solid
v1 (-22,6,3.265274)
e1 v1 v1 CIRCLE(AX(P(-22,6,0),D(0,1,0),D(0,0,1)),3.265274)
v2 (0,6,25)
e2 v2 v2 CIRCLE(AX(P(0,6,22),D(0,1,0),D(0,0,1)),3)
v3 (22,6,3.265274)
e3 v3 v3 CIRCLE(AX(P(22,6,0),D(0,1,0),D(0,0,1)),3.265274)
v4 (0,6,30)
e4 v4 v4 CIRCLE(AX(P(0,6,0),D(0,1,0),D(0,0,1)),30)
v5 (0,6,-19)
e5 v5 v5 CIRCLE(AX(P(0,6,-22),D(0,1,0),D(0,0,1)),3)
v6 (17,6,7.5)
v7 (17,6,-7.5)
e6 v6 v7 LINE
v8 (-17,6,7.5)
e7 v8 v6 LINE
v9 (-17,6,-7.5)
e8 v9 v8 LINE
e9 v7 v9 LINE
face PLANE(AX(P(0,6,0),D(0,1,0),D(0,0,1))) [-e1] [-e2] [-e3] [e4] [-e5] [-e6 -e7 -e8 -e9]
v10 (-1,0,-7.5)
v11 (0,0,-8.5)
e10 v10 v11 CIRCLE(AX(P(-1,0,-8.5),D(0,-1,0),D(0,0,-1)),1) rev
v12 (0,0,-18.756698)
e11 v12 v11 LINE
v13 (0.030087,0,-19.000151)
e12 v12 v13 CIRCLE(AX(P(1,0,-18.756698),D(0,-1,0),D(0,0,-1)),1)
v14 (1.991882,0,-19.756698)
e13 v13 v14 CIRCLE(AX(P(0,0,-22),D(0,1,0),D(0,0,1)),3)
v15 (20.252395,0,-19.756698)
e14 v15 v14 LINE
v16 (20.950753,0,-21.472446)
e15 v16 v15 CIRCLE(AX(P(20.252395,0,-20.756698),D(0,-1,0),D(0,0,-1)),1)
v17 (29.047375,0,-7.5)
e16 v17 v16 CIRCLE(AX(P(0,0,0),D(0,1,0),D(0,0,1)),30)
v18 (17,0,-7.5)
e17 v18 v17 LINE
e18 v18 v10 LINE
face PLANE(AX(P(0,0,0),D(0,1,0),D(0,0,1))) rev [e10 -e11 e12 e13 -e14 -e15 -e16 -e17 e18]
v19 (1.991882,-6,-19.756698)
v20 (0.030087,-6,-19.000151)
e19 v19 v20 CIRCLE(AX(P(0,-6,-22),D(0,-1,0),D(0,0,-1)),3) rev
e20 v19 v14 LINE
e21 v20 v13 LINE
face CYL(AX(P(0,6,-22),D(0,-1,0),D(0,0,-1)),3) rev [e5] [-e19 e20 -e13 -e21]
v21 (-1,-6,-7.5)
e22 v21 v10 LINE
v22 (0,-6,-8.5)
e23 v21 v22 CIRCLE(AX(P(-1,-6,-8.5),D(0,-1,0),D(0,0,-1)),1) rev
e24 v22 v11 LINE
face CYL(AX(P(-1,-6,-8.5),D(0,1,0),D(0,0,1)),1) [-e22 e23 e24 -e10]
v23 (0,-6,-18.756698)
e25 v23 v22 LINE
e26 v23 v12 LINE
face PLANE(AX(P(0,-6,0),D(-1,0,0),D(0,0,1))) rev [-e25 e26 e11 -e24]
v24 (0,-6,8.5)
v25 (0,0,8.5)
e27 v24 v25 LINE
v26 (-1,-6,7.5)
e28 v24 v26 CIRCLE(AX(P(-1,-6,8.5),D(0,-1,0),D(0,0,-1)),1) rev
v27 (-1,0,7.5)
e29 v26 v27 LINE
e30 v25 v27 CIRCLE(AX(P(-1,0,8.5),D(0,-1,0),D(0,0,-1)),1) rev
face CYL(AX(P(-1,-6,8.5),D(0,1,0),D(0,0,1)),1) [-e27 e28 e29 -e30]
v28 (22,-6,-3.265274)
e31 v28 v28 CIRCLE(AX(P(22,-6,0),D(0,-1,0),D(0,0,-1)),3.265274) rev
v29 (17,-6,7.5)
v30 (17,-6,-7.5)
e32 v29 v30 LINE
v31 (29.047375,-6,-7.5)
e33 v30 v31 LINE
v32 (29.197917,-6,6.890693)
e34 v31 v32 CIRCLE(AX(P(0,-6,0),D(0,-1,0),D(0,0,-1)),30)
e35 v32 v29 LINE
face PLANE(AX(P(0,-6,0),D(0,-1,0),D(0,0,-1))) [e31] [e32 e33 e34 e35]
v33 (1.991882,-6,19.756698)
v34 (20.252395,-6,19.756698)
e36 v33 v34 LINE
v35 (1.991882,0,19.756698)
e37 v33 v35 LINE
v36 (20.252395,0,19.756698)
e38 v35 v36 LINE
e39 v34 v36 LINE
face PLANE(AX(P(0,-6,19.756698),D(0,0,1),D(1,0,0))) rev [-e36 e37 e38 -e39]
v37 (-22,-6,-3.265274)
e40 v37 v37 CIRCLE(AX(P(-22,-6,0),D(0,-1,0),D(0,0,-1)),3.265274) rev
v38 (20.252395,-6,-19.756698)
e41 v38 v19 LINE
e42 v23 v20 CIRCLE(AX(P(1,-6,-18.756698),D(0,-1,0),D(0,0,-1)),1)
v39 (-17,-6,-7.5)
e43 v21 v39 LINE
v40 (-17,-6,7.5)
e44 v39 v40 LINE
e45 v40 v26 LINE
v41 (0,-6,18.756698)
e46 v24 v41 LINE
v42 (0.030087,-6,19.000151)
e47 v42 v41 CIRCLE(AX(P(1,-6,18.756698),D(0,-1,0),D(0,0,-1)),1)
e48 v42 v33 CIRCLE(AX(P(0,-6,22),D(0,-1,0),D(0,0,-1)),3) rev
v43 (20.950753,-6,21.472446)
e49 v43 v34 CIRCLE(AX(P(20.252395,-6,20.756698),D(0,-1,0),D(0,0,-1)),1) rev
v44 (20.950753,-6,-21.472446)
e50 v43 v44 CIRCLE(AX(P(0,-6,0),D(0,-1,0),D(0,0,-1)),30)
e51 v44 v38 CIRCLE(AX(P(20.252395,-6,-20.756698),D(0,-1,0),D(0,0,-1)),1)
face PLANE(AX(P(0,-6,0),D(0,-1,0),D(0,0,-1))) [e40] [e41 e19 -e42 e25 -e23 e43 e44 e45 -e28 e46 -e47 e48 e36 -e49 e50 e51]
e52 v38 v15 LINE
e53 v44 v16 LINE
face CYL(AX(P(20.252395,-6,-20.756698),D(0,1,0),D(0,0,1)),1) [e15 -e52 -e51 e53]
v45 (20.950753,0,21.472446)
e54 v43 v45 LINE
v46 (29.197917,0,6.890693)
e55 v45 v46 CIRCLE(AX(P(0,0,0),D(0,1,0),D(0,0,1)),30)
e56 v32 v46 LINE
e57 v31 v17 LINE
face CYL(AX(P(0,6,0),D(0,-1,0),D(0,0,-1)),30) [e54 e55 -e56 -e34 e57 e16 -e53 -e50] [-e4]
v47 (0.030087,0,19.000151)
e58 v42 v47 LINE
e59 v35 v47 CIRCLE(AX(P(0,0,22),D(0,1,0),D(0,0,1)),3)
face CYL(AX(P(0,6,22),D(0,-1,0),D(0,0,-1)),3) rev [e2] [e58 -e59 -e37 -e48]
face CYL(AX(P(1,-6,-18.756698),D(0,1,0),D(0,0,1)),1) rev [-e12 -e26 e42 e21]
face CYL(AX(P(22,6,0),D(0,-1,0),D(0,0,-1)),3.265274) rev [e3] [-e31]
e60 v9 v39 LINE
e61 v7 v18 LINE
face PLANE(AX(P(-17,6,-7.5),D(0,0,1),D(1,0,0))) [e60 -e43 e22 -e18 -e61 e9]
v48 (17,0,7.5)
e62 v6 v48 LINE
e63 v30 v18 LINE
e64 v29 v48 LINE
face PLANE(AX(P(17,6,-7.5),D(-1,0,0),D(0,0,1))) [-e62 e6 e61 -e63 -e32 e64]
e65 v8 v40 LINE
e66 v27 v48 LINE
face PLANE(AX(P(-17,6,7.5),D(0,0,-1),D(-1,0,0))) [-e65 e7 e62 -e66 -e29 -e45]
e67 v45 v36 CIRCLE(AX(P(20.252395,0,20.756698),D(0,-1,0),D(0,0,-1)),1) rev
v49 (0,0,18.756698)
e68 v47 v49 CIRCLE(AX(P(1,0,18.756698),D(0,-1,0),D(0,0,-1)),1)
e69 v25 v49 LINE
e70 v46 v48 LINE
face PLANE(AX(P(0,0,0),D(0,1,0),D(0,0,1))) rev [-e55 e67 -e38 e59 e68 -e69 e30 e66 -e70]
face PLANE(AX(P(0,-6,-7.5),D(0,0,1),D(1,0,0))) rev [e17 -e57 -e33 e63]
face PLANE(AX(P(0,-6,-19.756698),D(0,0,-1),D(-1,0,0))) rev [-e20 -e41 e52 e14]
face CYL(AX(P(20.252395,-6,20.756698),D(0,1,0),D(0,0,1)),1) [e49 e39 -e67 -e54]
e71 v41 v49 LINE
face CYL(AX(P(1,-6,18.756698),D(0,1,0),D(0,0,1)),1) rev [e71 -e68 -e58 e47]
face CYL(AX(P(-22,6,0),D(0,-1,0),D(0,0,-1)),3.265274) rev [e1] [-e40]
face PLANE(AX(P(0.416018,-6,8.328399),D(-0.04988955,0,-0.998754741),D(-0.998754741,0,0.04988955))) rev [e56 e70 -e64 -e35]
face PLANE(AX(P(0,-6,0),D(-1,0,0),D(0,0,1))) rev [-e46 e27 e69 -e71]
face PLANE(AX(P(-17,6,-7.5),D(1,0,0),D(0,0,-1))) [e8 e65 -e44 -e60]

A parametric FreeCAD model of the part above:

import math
import FreeCAD as App
import Part
import Sketcher
Q = App.Units.Quantity


def add_polygon(sketch, points):
    """Adds a closed chain of lines whose ends are joined by coincident constraints."""
    first, n = sketch.GeometryCount, len(points)
    for a, b in zip(points, points[1:] + points[:1]):
        sketch.addGeometry(Part.LineSegment(App.Vector(*a, 0), App.Vector(*b, 0)), False)
    for i in range(n):
        sketch.addConstraint(Sketcher.Constraint("Coincident", first + i, 2, first + (i + 1) % n, 1))

doc = App.newDocument("Part")
body = doc.addObject("PartDesign::Body", "Body")

sketch1 = body.newObject("Sketcher::SketchObject", "Sketch")
sketch1.AttachmentSupport = (doc.getObject("XZ_Plane"), [""])
sketch1.MapMode = "FlatFace"
sketch1.addGeometry(Part.Circle(App.Vector(0, 0, 0), App.Vector(0, 0, 1), 30), False)
sketch1.addGeometry(Part.Circle(App.Vector(0, -22, 0), App.Vector(0, 0, 1), 3), False)
sketch1.addGeometry(Part.Circle(App.Vector(-22, 0, 0), App.Vector(0, 0, 1), 3.3), False)
sketch1.addGeometry(Part.Circle(App.Vector(22, 0, 0), App.Vector(0, 0, 1), 3.3), False)
add_polygon(sketch1, [(17, 7.5), (-17, 7.5), (-17, -7.5), (17, -7.5)])
sketch1.addGeometry(Part.Circle(App.Vector(0, 22, 0), App.Vector(0, 0, 1), 3), False)
sketch1.addConstraint([
    Sketcher.Constraint("Horizontal", 4),
    Sketcher.Constraint("Vertical", 5),
    Sketcher.Constraint("Horizontal", 6),
    Sketcher.Constraint("Vertical", 7),
    Sketcher.Constraint("Coincident", 0, 3, -1, 1),
    Sketcher.Constraint("Equal", 2, 3),
    Sketcher.Constraint("Equal", 1, 8),
    Sketcher.Constraint("Symmetric", 2, 3, 3, 3, -1, 1),
    Sketcher.Constraint("Symmetric", 1, 3, 8, 3, -1, 1),
    Sketcher.Constraint("Symmetric", 4, 2, 6, 2, -1, 1),
    Sketcher.Constraint("PointOnObject", 1, 3, -2),
    Sketcher.Constraint("PointOnObject", 2, 3, -1),
    Sketcher.Constraint("Diameter", 0, Q("60 mm")),
    Sketcher.Constraint("Diameter", 1, Q("6 mm")),
    Sketcher.Constraint("DistanceX", 4, 2, 4, 1, Q("34 mm")),
    Sketcher.Constraint("DistanceY", 5, 2, 5, 1, Q("15 mm")),
    Sketcher.Constraint("DistanceY", 1, 3, -1, 1, Q("22 mm")),
    Sketcher.Constraint("DistanceX", 2, 3, -1, 1, Q("22 mm")),
    Sketcher.Constraint("Diameter", 2, Q("6.530548 mm")),
])
pad1 = body.newObject("PartDesign::Pad", "Pad")
pad1.Profile = sketch1
pad1.Length = 6
pad1.Reversed = True

sketch2 = body.newObject("Sketcher::SketchObject", "Sketch001")
sketch2.AttachmentSupport = (doc.getObject("XZ_Plane"), [""])
sketch2.MapMode = "FlatFace"
sketch2.AttachmentOffset = App.Placement(App.Vector(0, 0, 6), App.Rotation())
sketch2.addGeometry([
    Part.ArcOfCircle(Part.Circle(App.Vector(20.25, -20.76, 0), App.Vector(0, 0, 1), 1), math.radians(-46), math.radians(90)),
    Part.LineSegment(App.Vector(20.25, -19.76, 0), App.Vector(1.99, -19.76, 0)),
    Part.ArcOfCircle(Part.Circle(App.Vector(0, -22, 0), App.Vector(0, 0, 1), 3), math.radians(0), math.radians(48)),
    Part.ArcOfCircle(Part.Circle(App.Vector(0, -22, 0), App.Vector(0, 0, 1), 3), math.radians(89), math.radians(360)),
    Part.ArcOfCircle(Part.Circle(App.Vector(1, -18.76, 0), App.Vector(0, 0, 1), 1), math.radians(-180), math.radians(-165.91)),
    Part.LineSegment(App.Vector(0, -18.76, 0), App.Vector(0, -8.5, 0)),
    Part.ArcOfCircle(Part.Circle(App.Vector(-1, -8.5, 0), App.Vector(0, 0, 1), 1), math.radians(0), math.radians(90)),
    Part.LineSegment(App.Vector(-1, -7.5, 0), App.Vector(-17, -7.5, 0)),
    Part.LineSegment(App.Vector(-17, -7.5, 0), App.Vector(-17, 7.5, 0)),
    Part.LineSegment(App.Vector(-17, 7.5, 0), App.Vector(-1, 7.5, 0)),
    Part.ArcOfCircle(Part.Circle(App.Vector(-1, 8.5, 0), App.Vector(0, 0, 1), 1), math.radians(-90), math.radians(0)),
    Part.LineSegment(App.Vector(0, 8.5, 0), App.Vector(0, 18.76, 0)),
    Part.ArcOfCircle(Part.Circle(App.Vector(1, 18.76, 0), App.Vector(0, 0, 1), 1), math.radians(165.91), math.radians(180)),
    Part.ArcOfCircle(Part.Circle(App.Vector(0, 22, 0), App.Vector(0, 0, 1), 3), math.radians(0), math.radians(271)),
    Part.ArcOfCircle(Part.Circle(App.Vector(0, 22, 0), App.Vector(0, 0, 1), 3), math.radians(-48), math.radians(0)),
    Part.LineSegment(App.Vector(1.99, 19.76, 0), App.Vector(20.25, 19.76, 0)),
    Part.ArcOfCircle(Part.Circle(App.Vector(20.25, 20.76, 0), App.Vector(0, 0, 1), 1), math.radians(-90), math.radians(46)),
    Part.ArcOfCircle(Part.Circle(App.Vector(0, 0, 0), App.Vector(0, 0, 1), 30), math.radians(46), math.radians(314)),
    Part.Circle(App.Vector(-22, 0, 0), App.Vector(0, 0, 1), 3.27),
    Part.LineSegment(App.Vector(17, -7.5, 0), App.Vector(29.05, -7.5, 0)),
    Part.ArcOfCircle(Part.Circle(App.Vector(0, 0, 0), App.Vector(0, 0, 1), 30), math.radians(-14.48), math.radians(0)),
    Part.ArcOfCircle(Part.Circle(App.Vector(0, 0, 0), App.Vector(0, 0, 1), 30), math.radians(0), math.radians(13.28)),
    Part.LineSegment(App.Vector(29.2, 6.89, 0), App.Vector(17, 7.5, 0)),
    Part.LineSegment(App.Vector(17, 7.5, 0), App.Vector(17, -7.5, 0)),
    Part.Circle(App.Vector(22, 0, 0), App.Vector(0, 0, 1), 3.27),
], False)
sketch2.addConstraint([
    Sketcher.Constraint("Tangent", 0, 2, 1, 1),
    Sketcher.Constraint("Coincident", 1, 2, 2, 2),
    Sketcher.Constraint("Tangent", 2, 1, 3, 2),
    Sketcher.Constraint("Coincident", 3, 1, 4, 2),
    Sketcher.Constraint("Tangent", 4, 1, 5, 1),
    Sketcher.Constraint("Tangent", 5, 2, 6, 1),
    Sketcher.Constraint("Tangent", 6, 2, 7, 1),
    Sketcher.Constraint("Coincident", 7, 2, 8, 1),
    Sketcher.Constraint("Coincident", 8, 2, 9, 1),
    Sketcher.Constraint("Tangent", 9, 2, 10, 1),
    Sketcher.Constraint("Tangent", 10, 2, 11, 1),
    Sketcher.Constraint("Tangent", 11, 2, 12, 2),
    Sketcher.Constraint("Coincident", 12, 1, 13, 2),
    Sketcher.Constraint("Tangent", 13, 1, 14, 2),
    Sketcher.Constraint("Coincident", 14, 1, 15, 1),
    Sketcher.Constraint("Tangent", 15, 2, 16, 1),
    Sketcher.Constraint("Tangent", 16, 2, 17, 1),
    Sketcher.Constraint("Tangent", 17, 2, 0, 1),
    Sketcher.Constraint("Coincident", 19, 2, 20, 1),
    Sketcher.Constraint("Tangent", 20, 2, 21, 1),
    Sketcher.Constraint("Coincident", 21, 2, 22, 1),
    Sketcher.Constraint("Coincident", 22, 2, 23, 1),
    Sketcher.Constraint("Coincident", 23, 2, 19, 1),
    Sketcher.Constraint("Horizontal", 1),
    Sketcher.Constraint("Vertical", 5),
    Sketcher.Constraint("Horizontal", 7),
    Sketcher.Constraint("Vertical", 8),
    Sketcher.Constraint("Horizontal", 9),
    Sketcher.Constraint("Vertical", 11),
    Sketcher.Constraint("Horizontal", 15),
    Sketcher.Constraint("Horizontal", 19),
    Sketcher.Constraint("Vertical", 23),
    Sketcher.Constraint("Coincident", 17, 3, -1, 1),
    Sketcher.Constraint("Coincident", 20, 3, -1, 1),
    Sketcher.Constraint("Equal", 2, 3),
    Sketcher.Constraint("Equal", 0, 4),
    Sketcher.Constraint("Equal", 4, 6),
    Sketcher.Constraint("Equal", 6, 10),
    Sketcher.Constraint("Equal", 10, 12),
    Sketcher.Constraint("Equal", 3, 13),
    Sketcher.Constraint("Equal", 13, 14),
    Sketcher.Constraint("Equal", 12, 16),
    Sketcher.Constraint("Equal", 17, 20),
    Sketcher.Constraint("Equal", 20, 21),
    Sketcher.Constraint("Equal", 18, 24),
    Sketcher.Constraint("Symmetric", 2, 3, 13, 3, -1, 1),
    Sketcher.Constraint("Symmetric", 18, 3, 24, 3, -1, 1),
    Sketcher.Constraint("Symmetric", 5, 2, 10, 2, -1, 1),
    Sketcher.Constraint("Symmetric", 7, 2, 22, 2, -1, 1),
    Sketcher.Constraint("Symmetric", 4, 3, 12, 3, -1),
    Sketcher.Constraint("Symmetric", 2, 1, 13, 1, -1),
    Sketcher.Constraint("PointOnObject", 18, 3, -1),
    Sketcher.Constraint("PointOnObject", 20, 2, -1),
    Sketcher.Constraint("Horizontal", 3, 3, 2, 1),
    Sketcher.Constraint("Horizontal", 7, 2, 19, 2),
    Sketcher.Constraint("Vertical", 0, 3, 16, 3),
    Sketcher.Constraint("Radius", 0, Q("1 mm")),
    Sketcher.Constraint("Radius", 2, Q("3 mm")),
    Sketcher.Constraint("Radius", 17, Q("30 mm")),
    Sketcher.Constraint("DistanceX", 7, 2, 7, 1, Q("16 mm")),
    Sketcher.Constraint("DistanceY", 8, 1, 8, 2, Q("15 mm")),
    Sketcher.Constraint("DistanceY", 2, 3, -1, 1, Q("22 mm")),
    Sketcher.Constraint("DistanceX", 18, 3, -1, 1, Q("22 mm")),
    Sketcher.Constraint("DistanceY", 0, 3, 4, 3, Q("2 mm")),
    Sketcher.Constraint("Diameter", 18, Q("6.530548 mm")),
    Sketcher.Constraint("DistanceX", 1, 2, 1, 1, Q("18.260513 mm")),
    Sketcher.Constraint("DistanceX", 19, 2, 21, 2, Q("0.150542 mm")),
])
pad2 = body.newObject("PartDesign::Pad", "Pad001")
pad2.Profile = sketch2
pad2.Length = 6
pad2.Reversed = True

doc.recompute()
